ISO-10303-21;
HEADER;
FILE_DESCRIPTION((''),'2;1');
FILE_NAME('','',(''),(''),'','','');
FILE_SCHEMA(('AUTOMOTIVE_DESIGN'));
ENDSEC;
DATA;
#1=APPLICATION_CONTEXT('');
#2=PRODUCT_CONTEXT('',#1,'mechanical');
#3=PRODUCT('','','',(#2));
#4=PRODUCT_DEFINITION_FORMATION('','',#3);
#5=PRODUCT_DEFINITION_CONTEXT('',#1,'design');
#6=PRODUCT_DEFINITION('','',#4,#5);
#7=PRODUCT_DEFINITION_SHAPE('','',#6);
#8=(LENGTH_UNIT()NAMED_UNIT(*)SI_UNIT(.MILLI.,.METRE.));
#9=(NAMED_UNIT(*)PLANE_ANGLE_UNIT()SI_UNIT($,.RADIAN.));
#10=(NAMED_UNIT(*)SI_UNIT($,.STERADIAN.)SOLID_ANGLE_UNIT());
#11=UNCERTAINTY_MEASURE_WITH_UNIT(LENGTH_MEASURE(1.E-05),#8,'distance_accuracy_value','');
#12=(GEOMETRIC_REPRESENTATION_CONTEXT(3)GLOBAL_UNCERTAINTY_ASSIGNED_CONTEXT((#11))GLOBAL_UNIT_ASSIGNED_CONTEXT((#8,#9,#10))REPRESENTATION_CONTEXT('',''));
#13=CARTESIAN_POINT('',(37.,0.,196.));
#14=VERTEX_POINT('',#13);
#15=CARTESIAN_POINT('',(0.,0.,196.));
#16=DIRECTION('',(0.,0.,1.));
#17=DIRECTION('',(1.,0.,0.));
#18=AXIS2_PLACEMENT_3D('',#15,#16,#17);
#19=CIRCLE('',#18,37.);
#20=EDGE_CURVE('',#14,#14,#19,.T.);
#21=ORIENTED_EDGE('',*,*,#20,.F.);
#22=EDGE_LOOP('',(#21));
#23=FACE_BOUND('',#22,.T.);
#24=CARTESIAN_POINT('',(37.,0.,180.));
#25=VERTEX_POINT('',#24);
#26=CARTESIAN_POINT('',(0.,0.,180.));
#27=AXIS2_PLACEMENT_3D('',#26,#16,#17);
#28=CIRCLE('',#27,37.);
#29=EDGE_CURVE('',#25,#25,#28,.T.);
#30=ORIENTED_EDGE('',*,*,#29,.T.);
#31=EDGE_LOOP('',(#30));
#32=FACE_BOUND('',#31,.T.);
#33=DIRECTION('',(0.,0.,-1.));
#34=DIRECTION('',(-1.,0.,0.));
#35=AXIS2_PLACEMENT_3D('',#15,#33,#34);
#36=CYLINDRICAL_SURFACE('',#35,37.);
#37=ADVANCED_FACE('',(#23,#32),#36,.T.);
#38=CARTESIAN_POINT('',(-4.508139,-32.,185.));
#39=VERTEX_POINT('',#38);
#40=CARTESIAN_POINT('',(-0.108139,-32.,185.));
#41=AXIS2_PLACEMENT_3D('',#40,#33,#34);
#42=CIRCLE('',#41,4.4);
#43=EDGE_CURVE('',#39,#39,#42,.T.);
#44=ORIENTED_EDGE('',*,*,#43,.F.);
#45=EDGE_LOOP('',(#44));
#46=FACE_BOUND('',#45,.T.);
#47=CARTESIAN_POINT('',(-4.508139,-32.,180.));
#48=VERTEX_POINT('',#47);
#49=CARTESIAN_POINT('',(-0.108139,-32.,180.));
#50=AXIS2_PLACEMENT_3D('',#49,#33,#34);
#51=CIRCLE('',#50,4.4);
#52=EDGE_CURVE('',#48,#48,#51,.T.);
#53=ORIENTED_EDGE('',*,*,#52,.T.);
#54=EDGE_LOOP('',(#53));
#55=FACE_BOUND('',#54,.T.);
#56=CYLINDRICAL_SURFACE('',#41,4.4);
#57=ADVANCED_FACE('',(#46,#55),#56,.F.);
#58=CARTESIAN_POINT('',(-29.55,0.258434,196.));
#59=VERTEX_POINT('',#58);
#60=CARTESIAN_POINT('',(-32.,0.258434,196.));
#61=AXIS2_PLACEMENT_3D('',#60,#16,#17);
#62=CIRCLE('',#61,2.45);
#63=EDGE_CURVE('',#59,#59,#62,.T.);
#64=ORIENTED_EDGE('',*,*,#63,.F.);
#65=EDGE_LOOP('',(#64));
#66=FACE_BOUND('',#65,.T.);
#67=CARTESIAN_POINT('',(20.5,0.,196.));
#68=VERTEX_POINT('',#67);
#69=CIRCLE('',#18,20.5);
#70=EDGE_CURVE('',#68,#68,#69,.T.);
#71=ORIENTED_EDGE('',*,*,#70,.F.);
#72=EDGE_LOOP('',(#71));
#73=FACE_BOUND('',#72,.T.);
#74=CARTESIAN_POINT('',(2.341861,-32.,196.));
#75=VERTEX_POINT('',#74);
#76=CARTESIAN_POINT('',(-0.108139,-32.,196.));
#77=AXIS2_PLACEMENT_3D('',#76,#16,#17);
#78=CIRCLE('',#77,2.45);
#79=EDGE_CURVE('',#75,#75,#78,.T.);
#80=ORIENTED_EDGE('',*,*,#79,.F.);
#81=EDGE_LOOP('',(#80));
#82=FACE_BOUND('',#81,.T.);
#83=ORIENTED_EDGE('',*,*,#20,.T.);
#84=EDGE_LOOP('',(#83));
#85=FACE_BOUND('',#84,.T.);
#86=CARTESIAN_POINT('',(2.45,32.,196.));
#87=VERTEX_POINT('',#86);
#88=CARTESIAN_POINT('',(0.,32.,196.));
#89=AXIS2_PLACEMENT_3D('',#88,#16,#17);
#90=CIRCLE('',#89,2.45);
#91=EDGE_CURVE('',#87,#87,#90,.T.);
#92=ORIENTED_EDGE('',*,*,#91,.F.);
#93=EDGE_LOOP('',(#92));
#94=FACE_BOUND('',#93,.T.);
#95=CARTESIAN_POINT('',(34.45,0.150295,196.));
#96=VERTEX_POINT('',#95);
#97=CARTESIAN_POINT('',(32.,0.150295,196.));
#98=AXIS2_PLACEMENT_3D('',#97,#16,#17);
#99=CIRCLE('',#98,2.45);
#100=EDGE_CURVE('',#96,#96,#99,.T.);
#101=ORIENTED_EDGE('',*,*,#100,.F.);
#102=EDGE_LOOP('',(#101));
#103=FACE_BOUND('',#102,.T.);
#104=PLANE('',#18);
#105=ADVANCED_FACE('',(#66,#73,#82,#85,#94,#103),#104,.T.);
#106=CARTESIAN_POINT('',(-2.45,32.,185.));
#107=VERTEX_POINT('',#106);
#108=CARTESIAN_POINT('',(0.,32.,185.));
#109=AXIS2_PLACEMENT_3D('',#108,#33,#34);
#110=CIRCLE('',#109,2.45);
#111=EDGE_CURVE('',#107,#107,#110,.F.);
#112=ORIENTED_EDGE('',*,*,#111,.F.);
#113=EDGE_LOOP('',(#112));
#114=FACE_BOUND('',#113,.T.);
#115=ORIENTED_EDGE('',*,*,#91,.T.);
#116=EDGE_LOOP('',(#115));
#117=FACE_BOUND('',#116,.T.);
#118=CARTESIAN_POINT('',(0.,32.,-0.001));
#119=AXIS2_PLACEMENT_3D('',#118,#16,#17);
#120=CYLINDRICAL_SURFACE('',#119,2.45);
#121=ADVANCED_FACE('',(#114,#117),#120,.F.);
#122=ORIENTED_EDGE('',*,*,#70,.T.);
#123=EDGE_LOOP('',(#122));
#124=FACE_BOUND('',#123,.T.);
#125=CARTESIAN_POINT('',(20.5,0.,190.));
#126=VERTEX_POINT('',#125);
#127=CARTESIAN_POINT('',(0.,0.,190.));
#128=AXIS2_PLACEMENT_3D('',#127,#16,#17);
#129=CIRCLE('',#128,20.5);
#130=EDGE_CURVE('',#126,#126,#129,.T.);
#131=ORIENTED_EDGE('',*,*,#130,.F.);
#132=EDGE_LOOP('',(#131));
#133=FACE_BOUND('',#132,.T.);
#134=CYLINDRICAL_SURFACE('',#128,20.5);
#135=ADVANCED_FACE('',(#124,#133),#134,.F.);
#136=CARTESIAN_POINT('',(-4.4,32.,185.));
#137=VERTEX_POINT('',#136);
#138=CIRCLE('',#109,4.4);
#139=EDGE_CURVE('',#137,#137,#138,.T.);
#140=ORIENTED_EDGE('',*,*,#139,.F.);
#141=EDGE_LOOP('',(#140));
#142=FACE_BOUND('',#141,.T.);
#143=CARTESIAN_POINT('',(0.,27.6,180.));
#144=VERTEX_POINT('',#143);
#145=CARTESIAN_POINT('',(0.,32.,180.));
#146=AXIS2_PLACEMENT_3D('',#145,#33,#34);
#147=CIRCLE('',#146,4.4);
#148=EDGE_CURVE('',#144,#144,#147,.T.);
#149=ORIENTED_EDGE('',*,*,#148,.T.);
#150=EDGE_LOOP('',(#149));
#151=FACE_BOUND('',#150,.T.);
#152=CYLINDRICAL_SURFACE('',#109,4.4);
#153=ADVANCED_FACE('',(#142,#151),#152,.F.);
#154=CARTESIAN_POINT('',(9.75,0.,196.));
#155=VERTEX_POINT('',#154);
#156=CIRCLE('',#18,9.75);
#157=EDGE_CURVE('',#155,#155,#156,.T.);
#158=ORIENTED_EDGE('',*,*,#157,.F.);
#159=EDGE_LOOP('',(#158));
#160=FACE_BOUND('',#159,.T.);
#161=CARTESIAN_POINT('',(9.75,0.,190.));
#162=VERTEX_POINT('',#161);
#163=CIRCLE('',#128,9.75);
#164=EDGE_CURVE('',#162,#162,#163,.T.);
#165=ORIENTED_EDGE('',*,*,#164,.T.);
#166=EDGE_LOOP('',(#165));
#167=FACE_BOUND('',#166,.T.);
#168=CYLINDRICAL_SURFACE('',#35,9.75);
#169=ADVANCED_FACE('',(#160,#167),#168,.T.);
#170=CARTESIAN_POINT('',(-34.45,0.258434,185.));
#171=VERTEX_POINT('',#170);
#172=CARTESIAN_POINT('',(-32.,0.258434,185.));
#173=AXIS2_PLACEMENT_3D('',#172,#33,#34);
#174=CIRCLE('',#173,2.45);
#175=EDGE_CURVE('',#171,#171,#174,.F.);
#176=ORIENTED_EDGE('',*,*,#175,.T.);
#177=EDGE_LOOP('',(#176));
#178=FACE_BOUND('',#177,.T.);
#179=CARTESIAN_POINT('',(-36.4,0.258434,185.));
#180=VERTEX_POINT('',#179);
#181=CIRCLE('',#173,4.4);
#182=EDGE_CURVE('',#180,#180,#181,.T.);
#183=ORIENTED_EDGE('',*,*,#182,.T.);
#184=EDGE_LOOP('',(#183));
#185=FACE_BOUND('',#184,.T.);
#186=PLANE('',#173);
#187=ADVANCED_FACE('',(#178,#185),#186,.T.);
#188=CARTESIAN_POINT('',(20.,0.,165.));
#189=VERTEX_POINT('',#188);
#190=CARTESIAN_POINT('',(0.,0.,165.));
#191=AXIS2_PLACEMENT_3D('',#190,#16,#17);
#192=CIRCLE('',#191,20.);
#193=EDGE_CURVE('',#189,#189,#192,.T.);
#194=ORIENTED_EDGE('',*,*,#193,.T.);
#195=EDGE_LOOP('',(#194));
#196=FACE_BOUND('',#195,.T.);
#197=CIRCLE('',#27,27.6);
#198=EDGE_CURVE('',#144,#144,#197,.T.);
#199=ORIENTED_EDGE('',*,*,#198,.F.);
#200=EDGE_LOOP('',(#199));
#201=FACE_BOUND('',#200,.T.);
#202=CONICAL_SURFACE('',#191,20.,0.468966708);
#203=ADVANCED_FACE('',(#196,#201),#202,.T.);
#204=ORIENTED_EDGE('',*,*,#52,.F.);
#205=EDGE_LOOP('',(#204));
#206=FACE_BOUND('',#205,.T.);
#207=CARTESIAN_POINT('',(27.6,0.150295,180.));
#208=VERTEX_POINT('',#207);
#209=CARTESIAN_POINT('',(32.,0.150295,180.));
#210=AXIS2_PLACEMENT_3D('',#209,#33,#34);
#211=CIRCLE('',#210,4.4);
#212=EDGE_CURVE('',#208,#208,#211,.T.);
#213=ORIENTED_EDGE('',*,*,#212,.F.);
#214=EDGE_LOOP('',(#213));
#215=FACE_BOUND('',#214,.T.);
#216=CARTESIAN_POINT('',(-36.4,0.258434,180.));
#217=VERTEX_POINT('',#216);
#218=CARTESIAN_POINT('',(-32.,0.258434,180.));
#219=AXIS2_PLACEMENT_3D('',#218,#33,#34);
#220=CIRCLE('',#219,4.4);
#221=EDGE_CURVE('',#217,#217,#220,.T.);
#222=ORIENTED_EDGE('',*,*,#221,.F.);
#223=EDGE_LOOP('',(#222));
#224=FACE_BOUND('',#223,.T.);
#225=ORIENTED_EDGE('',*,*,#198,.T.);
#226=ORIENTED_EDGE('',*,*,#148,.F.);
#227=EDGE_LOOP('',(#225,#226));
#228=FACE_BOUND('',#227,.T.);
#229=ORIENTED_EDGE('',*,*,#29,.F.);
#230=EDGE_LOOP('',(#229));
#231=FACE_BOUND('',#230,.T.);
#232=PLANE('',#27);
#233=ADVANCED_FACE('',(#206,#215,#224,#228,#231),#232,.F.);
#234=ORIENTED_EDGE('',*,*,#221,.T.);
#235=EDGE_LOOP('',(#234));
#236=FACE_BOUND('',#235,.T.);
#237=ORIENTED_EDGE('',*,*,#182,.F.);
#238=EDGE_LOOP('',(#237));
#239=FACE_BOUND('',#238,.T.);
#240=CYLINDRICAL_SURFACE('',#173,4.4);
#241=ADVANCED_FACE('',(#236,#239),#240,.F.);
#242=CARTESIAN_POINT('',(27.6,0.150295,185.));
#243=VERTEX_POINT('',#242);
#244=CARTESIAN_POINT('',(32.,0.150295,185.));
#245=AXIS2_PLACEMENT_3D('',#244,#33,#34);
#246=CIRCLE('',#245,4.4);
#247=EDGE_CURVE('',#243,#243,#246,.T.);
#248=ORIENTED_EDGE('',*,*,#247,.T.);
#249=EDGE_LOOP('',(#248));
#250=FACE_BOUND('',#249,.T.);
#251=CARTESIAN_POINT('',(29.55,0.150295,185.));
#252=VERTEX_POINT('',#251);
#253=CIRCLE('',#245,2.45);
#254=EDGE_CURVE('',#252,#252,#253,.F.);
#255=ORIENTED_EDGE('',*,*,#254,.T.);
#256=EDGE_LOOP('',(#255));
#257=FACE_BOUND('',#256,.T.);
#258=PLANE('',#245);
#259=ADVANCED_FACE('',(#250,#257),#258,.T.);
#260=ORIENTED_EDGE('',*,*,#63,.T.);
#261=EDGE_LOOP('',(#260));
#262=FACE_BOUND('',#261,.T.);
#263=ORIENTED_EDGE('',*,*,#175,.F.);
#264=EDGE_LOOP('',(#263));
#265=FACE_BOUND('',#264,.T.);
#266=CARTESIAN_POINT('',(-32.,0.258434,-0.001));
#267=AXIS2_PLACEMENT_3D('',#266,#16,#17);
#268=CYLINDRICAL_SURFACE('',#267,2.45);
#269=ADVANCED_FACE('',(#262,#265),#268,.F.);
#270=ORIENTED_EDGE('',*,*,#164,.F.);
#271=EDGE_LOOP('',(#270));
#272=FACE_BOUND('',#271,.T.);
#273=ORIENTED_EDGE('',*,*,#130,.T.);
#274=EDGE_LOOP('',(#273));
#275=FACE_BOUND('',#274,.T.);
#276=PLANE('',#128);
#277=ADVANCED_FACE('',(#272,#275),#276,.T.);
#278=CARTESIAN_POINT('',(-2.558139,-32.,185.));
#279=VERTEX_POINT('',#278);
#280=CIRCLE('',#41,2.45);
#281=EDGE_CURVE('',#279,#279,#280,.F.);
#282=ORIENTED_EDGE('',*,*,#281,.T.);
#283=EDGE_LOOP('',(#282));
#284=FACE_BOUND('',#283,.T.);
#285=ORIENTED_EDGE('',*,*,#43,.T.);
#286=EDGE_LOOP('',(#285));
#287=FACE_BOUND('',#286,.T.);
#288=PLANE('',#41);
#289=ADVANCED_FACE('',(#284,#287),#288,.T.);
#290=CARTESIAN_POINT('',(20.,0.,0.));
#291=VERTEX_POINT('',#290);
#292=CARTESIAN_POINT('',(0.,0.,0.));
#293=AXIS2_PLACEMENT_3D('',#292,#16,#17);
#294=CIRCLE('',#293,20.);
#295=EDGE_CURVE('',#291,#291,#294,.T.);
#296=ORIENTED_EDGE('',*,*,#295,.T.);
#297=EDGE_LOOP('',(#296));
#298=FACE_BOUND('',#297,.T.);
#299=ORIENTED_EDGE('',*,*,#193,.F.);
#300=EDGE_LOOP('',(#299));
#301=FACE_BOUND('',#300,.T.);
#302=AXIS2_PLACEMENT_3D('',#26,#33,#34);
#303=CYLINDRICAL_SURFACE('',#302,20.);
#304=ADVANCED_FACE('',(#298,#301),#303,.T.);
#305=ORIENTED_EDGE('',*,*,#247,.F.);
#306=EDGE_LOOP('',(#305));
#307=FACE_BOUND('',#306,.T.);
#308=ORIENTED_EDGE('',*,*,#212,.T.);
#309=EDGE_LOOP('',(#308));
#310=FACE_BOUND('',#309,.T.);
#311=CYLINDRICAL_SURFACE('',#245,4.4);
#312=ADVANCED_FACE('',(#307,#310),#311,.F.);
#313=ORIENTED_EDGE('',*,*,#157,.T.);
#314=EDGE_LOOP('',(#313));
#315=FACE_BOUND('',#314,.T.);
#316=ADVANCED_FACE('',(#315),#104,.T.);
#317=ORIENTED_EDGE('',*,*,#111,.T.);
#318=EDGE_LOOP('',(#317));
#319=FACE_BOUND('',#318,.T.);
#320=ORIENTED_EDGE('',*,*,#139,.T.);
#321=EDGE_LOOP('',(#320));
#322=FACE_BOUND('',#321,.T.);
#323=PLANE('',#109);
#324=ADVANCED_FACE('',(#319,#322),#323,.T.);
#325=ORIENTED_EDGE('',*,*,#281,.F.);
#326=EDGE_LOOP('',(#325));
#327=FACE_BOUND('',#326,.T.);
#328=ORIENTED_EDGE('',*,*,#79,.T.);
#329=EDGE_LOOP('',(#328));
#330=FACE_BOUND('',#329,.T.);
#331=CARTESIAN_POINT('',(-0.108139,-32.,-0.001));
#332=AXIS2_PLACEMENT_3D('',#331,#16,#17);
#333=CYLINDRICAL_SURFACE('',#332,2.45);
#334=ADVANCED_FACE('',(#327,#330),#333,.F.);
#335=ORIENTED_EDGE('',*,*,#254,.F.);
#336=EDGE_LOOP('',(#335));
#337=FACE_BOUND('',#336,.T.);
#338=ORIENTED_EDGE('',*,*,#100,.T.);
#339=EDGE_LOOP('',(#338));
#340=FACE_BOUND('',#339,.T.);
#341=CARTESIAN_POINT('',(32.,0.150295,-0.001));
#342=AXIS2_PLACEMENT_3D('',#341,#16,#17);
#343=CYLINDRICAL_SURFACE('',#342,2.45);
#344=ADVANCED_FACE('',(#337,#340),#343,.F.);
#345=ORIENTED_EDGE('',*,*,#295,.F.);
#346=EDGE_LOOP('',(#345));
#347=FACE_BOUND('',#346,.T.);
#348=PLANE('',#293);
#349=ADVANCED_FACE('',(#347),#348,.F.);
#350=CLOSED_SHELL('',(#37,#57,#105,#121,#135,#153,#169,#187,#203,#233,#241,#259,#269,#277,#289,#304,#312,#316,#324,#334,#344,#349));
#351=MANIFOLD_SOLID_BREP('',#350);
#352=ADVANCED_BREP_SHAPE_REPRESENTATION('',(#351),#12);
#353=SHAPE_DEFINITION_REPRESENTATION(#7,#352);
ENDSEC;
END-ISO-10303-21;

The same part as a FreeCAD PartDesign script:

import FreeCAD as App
import Part
import Sketcher

V = App.Vector
Q = App.Units.Quantity


def add_polygon(sketch, points):
    """Adds a closed chain of lines whose ends are joined by coincident constraints."""
    first, n = sketch.GeometryCount, len(points)
    for a, b in zip(points, points[1:] + points[:1]):
        sketch.addGeometry(Part.LineSegment(App.Vector(*a, 0), App.Vector(*b, 0)), False)
    for i in range(n):
        sketch.addConstraint(Sketcher.Constraint("Coincident", first + i, 2, first + (i + 1) % n, 1))

doc = App.newDocument("Part")
body = doc.addObject("PartDesign::Body", "Body")

# Sketch on XY plane
sketch1 = body.newObject("Sketcher::SketchObject", "Sketch")
sketch1.AttachmentSupport = (doc.getObject("XY_Plane"), [""])
sketch1.MapMode = "FlatFace"
sketch1.addGeometry(Part.Circle(V(0, 0, 0), V(0, 0, 1), 20), False)
sketch1.addConstraint([
    Sketcher.Constraint("Coincident", 0, 3, -1, 1),
    Sketcher.Constraint("Diameter", 0, Q("40 mm")),
])
pad1 = body.newObject("PartDesign::Pad", "Pad")
pad1.Profile = sketch1
pad1.Length = 180

# Sketch on XY plane
sketch2 = body.newObject("Sketcher::SketchObject", "Sketch001")
sketch2.AttachmentSupport = (doc.getObject("XY_Plane"), [""])
sketch2.MapMode = "FlatFace"
sketch2.AttachmentOffset = App.Placement(V(0, 0, 180), App.Rotation())
sketch2.addGeometry(Part.Circle(V(0, 0, 0), V(0, 0, 1), 37), False)
sketch2.addConstraint([
    Sketcher.Constraint("Coincident", 0, 3, -1, 1),
    Sketcher.Constraint("Diameter", 0, Q("74 mm")),
])
pad2 = body.newObject("PartDesign::Pad", "Pad001")
pad2.Profile = sketch2
pad2.Length = 16

# Sketch on XY plane
sketch3 = body.newObject("Sketcher::SketchObject", "Sketch002")
sketch3.AttachmentSupport = (doc.getObject("XY_Plane"), [""])
sketch3.MapMode = "FlatFace"
sketch3.AttachmentOffset = App.Placement(V(0, 0, 196), App.Rotation())
sketch3.addGeometry(Part.Circle(V(0, 0, 0), V(0, 0, 1), 20.5), False)
sketch3.addConstraint([
    Sketcher.Constraint("Coincident", 0, 3, -1, 1),
    Sketcher.Constraint("Diameter", 0, Q("41 mm")),
])
pocket1 = body.newObject("PartDesign::Pocket", "Pocket")
pocket1.Profile = sketch3
pocket1.Length = 6

# Sketch on XY plane
sketch4 = body.newObject("Sketcher::SketchObject", "Sketch003")
sketch4.AttachmentSupport = (doc.getObject("XY_Plane"), [""])
sketch4.MapMode = "FlatFace"
sketch4.AttachmentOffset = App.Placement(V(0, 0, 190), App.Rotation())
sketch4.addGeometry(Part.Circle(V(0, 0, 0), V(0, 0, 1), 9.75), False)
sketch4.addConstraint([
    Sketcher.Constraint("Coincident", 0, 3, -1, 1),
    Sketcher.Constraint("Diameter", 0, Q("19.5 mm")),
])
pad3 = body.newObject("PartDesign::Pad", "Pad002")
pad3.Profile = sketch4
pad3.Length = 6

# Sketch on XY plane
sketch5 = body.newObject("Sketcher::SketchObject", "Sketch004")
sketch5.AttachmentSupport = (doc.getObject("XY_Plane"), [""])
sketch5.MapMode = "FlatFace"
sketch5.AttachmentOffset = App.Placement(V(0, 0, 196), App.Rotation())
sketch5.addGeometry(Part.Circle(V(0, 32, 0), V(0, 0, 1), 2.45), False)
sketch5.addConstraint([
    Sketcher.Constraint("PointOnObject", 0, 3, -2),
    Sketcher.Constraint("Diameter", 0, Q("4.9 mm")),
    Sketcher.Constraint("DistanceY", -1, 1, 0, 3, Q("32 mm")),
])
pocket2 = body.newObject("PartDesign::Pocket", "Pocket001")
pocket2.Profile = sketch5
pocket2.Type = "UpToFirst"

# Sketch on XY plane
sketch6 = body.newObject("Sketcher::SketchObject", "Sketch005")
sketch6.AttachmentSupport = (doc.getObject("XY_Plane"), [""])
sketch6.MapMode = "FlatFace"
sketch6.AttachmentOffset = App.Placement(V(0, 0, 196), App.Rotation())
sketch6.addGeometry(Part.Circle(V(32, 0.150295, 0), V(0, 0, 1), 2.45), False)
sketch6.addConstraint([
    Sketcher.Constraint("Diameter", 0, Q("4.9 mm")),
    Sketcher.Constraint("DistanceX", -1, 1, 0, 3, Q("32 mm")),
    Sketcher.Constraint("DistanceY", -1, 1, 0, 3, Q("0.150295 mm")),
])
pocket3 = body.newObject("PartDesign::Pocket", "Pocket002")
pocket3.Profile = sketch6
pocket3.Type = "UpToFirst"

# Sketch on XY plane
sketch7 = body.newObject("Sketcher::SketchObject", "Sketch006")
sketch7.AttachmentSupport = (doc.getObject("XY_Plane"), [""])
sketch7.MapMode = "FlatFace"
sketch7.AttachmentOffset = App.Placement(V(0, 0, 196), App.Rotation())
sketch7.addGeometry(Part.Circle(V(-32, 0.258434, 0), V(0, 0, 1), 2.45), False)
sketch7.addConstraint([
    Sketcher.Constraint("Diameter", 0, Q("4.9 mm")),
    Sketcher.Constraint("DistanceX", 0, 3, -1, 1, Q("32 mm")),
    Sketcher.Constraint("DistanceY", -1, 1, 0, 3, Q("0.258434 mm")),
])
pocket4 = body.newObject("PartDesign::Pocket", "Pocket003")
pocket4.Profile = sketch7
pocket4.Type = "UpToFirst"

# Sketch on XY plane
sketch8 = body.newObject("Sketcher::SketchObject", "Sketch007")
sketch8.AttachmentSupport = (doc.getObject("XY_Plane"), [""])
sketch8.MapMode = "FlatFace"
sketch8.AttachmentOffset = App.Placement(V(0, 0, 196), App.Rotation())
sketch8.addGeometry(Part.Circle(V(-0.108139, -32, 0), V(0, 0, 1), 2.45), False)
sketch8.addConstraint([
    Sketcher.Constraint("Diameter", 0, Q("4.9 mm")),
    Sketcher.Constraint("DistanceY", 0, 3, -1, 1, Q("32 mm")),
    Sketcher.Constraint("DistanceX", 0, 3, -1, 1, Q("0.108139 mm")),
])
pocket5 = body.newObject("PartDesign::Pocket", "Pocket004")
pocket5.Profile = sketch8
pocket5.Type = "UpToFirst"

# Sketch on XY plane
sketch9 = body.newObject("Sketcher::SketchObject", "Sketch008")
sketch9.AttachmentSupport = (doc.getObject("XY_Plane"), [""])
sketch9.MapMode = "FlatFace"
sketch9.AttachmentOffset = App.Placement(V(0, 0, 180), App.Rotation())
sketch9.addGeometry([
    Part.Circle(V(0, 32, 0), V(0, 0, 1), 4.4),
    Part.Circle(V(-32, 0.258434, 0), V(0, 0, 1), 4.4),
    Part.Circle(V(-0.108139, -32, 0), V(0, 0, 1), 4.4),
    Part.Circle(V(32, 0.150295, 0), V(0, 0, 1), 4.4),
], False)
sketch9.addConstraint([
    Sketcher.Constraint("Equal", 0, 1),
    Sketcher.Constraint("Equal", 1, 2),
    Sketcher.Constraint("Equal", 2, 3),
    Sketcher.Constraint("PointOnObject", 0, 3, -2),
    Sketcher.Constraint("Diameter", 0, Q("8.8 mm")),
    Sketcher.Constraint("DistanceY", -1, 1, 0, 3, Q("32 mm")),
    Sketcher.Constraint("DistanceX", 1, 3, -1, 1, Q("32 mm")),
    Sketcher.Constraint("DistanceY", 2, 3, -1, 1, Q("32 mm")),
    Sketcher.Constraint("DistanceX", -1, 1, 3, 3, Q("32 mm")),
    Sketcher.Constraint("DistanceX", 2, 3, -1, 1, Q("0.108139 mm")),
    Sketcher.Constraint("DistanceY", 3, 3, 1, 3, Q("0.108139 mm")),
    Sketcher.Constraint("DistanceY", -1, 1, 1, 3, Q("0.258434 mm")),
])
pocket6 = body.newObject("PartDesign::Pocket", "Pocket005")
pocket6.Profile = sketch9
pocket6.Length = 5
pocket6.Reversed = True

# Sketch on XZ plane
sketch10 = body.newObject("Sketcher::SketchObject", "Sketch009")
sketch10.AttachmentSupport = (doc.getObject("XZ_Plane"), [""])
sketch10.MapMode = "FlatFace"
add_polygon(sketch10, [(-27.6, 180), (-20, 180), (-20, 165)])  # lines 0-2
sketch10.addConstraint([
    Sketcher.Constraint("Horizontal", 0),
    Sketcher.Constraint("Vertical", 1),
    Sketcher.Constraint("DistanceY", 1, 2, 1, 1, Q("15 mm")),
    Sketcher.Constraint("DistanceX", 0, 1, 0, 2, Q("7.6 mm")),
    Sketcher.Constraint("DistanceX", 0, 2, -1, 1, Q("20 mm")),
    Sketcher.Constraint("DistanceY", -1, 1, 0, 2, Q("180 mm")),
])
revolution = body.newObject("PartDesign::Revolution", "Revolution")
revolution.Profile = sketch10
revolution.ReferenceAxis = (sketch10, ["V_Axis"])
revolution.Angle = 360

doc.recompute()
